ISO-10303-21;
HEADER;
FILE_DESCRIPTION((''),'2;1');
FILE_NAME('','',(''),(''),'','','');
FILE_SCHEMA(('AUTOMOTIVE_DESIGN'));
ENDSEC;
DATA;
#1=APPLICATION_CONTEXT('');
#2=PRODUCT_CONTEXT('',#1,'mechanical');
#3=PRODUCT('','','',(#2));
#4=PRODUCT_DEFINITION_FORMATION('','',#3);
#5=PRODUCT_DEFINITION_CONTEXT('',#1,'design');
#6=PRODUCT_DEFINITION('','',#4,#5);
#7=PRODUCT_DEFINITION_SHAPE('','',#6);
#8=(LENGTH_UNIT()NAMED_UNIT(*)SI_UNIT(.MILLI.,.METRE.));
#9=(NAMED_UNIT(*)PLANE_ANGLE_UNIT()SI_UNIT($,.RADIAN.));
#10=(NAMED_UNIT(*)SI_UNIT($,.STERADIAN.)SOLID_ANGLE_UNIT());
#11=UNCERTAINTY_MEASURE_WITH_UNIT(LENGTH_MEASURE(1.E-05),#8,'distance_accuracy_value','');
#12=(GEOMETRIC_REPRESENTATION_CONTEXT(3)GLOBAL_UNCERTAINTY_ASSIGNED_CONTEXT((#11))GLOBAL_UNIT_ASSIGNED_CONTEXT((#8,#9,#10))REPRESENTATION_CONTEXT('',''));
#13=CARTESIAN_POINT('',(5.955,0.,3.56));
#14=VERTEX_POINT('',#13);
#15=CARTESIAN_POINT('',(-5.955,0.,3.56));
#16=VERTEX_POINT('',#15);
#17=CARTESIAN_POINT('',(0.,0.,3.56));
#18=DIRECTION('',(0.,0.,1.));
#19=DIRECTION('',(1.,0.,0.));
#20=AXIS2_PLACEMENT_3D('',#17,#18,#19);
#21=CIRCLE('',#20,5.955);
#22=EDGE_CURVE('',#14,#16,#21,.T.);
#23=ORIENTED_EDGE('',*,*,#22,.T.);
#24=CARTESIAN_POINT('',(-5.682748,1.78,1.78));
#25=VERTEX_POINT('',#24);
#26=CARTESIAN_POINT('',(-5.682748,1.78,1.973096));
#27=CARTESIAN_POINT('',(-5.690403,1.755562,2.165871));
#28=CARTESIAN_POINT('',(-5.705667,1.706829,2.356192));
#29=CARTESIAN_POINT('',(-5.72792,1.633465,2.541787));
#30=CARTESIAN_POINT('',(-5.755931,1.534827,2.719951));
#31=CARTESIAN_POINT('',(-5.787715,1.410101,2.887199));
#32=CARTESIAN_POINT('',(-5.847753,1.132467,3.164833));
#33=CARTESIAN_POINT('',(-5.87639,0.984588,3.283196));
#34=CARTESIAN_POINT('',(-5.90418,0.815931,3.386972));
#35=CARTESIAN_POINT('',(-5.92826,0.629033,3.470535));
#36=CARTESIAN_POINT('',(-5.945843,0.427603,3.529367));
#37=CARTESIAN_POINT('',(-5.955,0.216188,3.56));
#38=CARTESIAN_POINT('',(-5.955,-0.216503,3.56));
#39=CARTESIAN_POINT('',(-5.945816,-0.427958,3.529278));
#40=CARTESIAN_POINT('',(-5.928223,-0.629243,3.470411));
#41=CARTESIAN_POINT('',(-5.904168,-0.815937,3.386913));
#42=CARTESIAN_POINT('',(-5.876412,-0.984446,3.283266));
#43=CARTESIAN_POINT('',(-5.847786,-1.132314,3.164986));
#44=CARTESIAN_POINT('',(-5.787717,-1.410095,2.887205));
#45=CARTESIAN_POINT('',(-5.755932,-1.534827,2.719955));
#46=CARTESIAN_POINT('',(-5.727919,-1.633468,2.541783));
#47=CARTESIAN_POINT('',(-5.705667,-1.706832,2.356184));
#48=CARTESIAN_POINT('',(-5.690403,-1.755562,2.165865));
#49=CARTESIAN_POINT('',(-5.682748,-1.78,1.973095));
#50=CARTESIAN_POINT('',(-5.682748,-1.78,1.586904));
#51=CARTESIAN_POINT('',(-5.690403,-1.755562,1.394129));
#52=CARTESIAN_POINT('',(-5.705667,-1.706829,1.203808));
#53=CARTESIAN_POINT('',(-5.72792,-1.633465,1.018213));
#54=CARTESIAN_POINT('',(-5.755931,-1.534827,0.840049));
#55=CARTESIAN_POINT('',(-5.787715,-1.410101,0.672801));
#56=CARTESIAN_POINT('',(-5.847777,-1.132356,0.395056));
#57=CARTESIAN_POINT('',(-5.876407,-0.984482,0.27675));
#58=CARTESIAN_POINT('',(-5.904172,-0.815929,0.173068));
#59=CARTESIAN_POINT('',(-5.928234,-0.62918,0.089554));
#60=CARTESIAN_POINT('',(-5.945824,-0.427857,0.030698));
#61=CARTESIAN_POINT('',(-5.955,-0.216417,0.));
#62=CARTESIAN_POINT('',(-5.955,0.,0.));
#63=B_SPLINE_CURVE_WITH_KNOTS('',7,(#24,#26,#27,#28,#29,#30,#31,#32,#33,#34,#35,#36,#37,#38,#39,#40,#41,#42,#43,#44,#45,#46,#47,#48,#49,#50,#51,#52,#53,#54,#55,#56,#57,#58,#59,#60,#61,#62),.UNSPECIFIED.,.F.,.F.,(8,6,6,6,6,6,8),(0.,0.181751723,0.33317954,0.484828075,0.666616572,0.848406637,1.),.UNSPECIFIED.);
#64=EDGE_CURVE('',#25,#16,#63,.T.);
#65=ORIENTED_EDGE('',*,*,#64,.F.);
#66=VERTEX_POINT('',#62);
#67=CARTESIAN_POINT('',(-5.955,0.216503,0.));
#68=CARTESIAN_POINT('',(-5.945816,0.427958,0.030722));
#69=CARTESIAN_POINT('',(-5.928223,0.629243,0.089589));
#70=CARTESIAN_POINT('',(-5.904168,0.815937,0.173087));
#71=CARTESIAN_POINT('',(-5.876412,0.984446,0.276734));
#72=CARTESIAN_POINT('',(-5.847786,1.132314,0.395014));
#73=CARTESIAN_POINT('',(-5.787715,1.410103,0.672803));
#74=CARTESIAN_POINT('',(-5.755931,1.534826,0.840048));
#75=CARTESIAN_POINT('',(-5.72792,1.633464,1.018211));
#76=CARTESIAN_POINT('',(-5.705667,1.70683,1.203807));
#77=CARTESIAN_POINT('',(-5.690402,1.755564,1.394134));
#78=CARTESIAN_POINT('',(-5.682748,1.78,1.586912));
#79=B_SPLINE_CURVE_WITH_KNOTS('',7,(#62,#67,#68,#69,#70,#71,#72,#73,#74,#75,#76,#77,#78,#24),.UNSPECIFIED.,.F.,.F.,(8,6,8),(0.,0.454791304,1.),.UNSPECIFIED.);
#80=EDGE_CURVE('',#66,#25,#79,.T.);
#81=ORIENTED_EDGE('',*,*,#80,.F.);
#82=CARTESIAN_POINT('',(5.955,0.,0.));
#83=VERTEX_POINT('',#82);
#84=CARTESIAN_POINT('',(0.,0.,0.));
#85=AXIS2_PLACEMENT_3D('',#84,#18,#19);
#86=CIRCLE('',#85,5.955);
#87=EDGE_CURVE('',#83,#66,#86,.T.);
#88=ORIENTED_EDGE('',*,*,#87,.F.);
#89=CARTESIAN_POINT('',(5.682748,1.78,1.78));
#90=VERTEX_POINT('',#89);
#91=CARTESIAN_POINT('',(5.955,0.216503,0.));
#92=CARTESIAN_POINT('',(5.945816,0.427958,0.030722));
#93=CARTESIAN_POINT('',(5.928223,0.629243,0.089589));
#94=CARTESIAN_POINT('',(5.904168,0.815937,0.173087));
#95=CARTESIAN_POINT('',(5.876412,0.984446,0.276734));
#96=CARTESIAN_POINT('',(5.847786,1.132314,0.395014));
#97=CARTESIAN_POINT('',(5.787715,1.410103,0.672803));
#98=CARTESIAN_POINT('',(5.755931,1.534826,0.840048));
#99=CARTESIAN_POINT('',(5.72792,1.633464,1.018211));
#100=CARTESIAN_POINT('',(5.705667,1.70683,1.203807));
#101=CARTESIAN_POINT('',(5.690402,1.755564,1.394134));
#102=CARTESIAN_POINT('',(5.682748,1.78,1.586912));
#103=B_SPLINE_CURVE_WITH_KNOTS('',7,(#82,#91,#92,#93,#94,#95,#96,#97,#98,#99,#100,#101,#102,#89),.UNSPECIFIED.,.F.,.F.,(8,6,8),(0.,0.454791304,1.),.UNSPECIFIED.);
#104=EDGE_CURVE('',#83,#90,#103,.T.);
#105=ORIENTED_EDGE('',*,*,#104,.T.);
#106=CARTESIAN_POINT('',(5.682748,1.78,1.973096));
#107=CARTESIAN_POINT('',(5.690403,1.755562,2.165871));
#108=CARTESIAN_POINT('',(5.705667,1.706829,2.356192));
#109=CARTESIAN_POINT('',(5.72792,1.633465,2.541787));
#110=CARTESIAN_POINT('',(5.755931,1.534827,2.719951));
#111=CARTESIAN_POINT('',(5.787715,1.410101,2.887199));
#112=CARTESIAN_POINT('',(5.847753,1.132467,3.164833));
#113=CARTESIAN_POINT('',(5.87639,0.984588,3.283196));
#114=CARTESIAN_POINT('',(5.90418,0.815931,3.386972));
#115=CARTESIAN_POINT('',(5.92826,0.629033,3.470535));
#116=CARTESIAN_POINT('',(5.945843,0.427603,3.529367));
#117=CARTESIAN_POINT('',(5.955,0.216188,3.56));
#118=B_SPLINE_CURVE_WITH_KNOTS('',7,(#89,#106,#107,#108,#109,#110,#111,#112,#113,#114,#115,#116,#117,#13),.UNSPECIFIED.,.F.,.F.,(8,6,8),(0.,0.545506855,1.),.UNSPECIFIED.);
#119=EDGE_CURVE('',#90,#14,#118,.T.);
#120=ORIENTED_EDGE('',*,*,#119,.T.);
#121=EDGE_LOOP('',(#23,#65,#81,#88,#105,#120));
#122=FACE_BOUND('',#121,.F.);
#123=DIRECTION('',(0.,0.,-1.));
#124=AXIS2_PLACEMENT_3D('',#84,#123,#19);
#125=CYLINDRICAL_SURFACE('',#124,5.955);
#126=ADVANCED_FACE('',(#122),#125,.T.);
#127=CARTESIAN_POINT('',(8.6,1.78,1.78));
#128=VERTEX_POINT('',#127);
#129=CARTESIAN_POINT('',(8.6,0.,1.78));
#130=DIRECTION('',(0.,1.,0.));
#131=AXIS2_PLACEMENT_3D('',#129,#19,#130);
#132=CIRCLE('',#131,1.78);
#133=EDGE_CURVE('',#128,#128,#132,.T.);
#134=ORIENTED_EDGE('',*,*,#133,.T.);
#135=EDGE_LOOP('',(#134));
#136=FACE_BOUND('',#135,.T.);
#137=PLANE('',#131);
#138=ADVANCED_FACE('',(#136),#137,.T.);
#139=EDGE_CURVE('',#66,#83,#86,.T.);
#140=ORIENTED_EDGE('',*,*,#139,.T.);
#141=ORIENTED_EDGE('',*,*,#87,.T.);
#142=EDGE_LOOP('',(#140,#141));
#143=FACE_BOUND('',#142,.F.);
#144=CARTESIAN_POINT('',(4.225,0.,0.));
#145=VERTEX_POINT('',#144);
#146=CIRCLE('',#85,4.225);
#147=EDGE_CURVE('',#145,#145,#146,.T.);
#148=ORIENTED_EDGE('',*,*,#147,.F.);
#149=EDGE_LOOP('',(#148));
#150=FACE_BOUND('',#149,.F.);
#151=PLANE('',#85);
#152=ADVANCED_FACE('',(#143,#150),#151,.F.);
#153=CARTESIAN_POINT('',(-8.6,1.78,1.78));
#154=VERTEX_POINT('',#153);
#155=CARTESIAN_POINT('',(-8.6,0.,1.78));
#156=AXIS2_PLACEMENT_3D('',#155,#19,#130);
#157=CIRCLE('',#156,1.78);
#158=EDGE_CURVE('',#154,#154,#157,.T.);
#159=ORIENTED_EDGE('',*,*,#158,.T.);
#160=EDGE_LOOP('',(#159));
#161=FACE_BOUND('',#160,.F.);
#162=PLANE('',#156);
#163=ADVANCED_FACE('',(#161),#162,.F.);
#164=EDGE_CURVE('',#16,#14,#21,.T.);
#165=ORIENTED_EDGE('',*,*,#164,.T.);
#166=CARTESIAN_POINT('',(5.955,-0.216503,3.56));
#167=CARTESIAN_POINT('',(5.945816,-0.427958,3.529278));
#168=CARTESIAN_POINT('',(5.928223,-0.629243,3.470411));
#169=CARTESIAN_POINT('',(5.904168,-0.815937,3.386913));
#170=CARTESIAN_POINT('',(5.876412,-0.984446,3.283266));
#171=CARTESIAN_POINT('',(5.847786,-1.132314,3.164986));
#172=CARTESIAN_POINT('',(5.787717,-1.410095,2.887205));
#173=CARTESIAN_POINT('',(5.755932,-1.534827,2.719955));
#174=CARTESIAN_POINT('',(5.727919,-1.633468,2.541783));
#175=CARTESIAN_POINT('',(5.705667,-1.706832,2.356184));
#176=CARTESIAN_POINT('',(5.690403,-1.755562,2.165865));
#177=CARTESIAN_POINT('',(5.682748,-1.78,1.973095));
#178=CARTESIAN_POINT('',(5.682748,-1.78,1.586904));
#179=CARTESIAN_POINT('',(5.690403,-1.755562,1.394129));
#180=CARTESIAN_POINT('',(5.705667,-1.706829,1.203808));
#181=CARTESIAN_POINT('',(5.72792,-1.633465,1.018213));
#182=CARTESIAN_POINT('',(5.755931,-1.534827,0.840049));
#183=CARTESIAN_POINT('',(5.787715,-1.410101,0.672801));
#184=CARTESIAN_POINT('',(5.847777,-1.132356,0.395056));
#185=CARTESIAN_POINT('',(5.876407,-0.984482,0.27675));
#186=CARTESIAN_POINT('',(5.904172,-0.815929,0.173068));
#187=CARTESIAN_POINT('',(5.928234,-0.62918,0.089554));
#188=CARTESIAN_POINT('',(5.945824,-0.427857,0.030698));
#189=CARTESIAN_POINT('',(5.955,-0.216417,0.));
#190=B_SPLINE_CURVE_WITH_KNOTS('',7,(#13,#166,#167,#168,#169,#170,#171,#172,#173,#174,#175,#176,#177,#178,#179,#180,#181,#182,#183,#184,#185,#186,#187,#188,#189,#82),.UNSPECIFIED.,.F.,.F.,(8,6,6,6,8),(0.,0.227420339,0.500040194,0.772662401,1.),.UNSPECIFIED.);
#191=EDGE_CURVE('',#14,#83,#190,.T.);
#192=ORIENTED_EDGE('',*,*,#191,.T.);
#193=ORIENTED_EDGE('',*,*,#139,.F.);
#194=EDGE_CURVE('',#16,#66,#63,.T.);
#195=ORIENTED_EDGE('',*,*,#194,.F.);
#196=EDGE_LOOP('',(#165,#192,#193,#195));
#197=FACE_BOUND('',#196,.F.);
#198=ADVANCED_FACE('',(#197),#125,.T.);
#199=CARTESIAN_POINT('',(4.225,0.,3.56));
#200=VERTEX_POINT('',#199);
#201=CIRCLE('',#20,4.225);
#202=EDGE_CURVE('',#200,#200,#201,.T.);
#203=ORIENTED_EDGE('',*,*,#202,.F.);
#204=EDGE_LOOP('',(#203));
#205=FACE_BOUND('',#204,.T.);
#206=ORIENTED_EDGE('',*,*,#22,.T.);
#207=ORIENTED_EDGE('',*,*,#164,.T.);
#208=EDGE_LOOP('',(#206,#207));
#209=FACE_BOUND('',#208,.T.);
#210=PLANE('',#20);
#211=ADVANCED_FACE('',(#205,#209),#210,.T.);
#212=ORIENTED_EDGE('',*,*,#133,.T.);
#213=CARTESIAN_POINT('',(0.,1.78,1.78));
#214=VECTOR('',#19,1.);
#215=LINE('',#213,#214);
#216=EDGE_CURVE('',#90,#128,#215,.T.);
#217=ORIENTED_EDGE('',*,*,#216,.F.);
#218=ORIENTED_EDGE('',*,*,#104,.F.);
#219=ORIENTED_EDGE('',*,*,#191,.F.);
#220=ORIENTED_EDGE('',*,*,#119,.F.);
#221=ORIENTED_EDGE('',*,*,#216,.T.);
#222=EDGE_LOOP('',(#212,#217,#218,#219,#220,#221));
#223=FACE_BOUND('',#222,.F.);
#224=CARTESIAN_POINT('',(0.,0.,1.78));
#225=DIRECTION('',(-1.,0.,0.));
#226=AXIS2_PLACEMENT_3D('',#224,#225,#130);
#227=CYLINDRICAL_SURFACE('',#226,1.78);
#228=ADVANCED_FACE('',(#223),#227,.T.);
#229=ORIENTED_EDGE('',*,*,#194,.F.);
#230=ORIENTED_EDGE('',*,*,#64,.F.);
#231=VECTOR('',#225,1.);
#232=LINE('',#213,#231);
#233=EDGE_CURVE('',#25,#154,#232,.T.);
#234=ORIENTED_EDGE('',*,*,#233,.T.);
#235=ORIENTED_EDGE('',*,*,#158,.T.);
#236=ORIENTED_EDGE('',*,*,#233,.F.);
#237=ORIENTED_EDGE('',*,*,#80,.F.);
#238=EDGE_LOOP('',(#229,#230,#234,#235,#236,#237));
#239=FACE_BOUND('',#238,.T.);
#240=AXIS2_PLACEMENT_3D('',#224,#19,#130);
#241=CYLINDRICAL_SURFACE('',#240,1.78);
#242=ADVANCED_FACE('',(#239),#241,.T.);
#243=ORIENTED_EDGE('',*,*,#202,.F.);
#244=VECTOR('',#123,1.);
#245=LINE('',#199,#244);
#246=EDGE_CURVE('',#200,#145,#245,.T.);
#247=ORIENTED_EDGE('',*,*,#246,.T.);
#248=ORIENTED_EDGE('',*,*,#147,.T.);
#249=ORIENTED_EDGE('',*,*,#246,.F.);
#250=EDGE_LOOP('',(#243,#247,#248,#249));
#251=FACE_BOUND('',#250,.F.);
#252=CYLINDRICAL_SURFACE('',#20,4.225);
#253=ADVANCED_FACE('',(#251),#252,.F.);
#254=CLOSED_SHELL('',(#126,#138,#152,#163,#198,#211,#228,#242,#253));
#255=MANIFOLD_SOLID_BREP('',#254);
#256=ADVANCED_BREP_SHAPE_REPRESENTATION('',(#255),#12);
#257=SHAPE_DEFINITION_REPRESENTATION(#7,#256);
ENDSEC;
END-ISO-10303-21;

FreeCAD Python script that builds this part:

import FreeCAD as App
import Part
import Sketcher

V = App.Vector

doc = App.newDocument("Part")
body = doc.addObject("PartDesign::Body", "Body")

# Sketch on YZ plane
sketch1 = body.newObject("Sketcher::SketchObject", "Sketch")
sketch1.AttachmentSupport = (doc.getObject("YZ_Plane"), [""])
sketch1.MapMode = "FlatFace"
sketch1.addGeometry(Part.Circle(V(0, 1.78, 0), V(0, 0, 1), 1.78), False)
sketch1.addConstraint(Sketcher.Constraint("PointOnObject", 0, 3, -2))
sketch1.addConstraint(Sketcher.Constraint("Diameter", 0, 3.56))
sketch1.addConstraint(Sketcher.Constraint("DistanceY", -1, 1, 0, 3, 1.78))
pad1 = body.newObject("PartDesign::Pad", "Pad")
pad1.Profile = sketch1
pad1.Type = "TwoLengths"
pad1.Length = 8.6
pad1.Length2 = 8.6
pad1.Reversed = True

# Sketch on XY plane
sketch2 = body.newObject("Sketcher::SketchObject", "Sketch001")
sketch2.AttachmentSupport = (doc.getObject("XY_Plane"), [""])
sketch2.MapMode = "FlatFace"
sketch2.addGeometry(Part.Circle(V(0, 0, 0), V(0, 0, 1), 5.955), False)
sketch2.addConstraint(Sketcher.Constraint("Coincident", 0, 3, -1, 1))
sketch2.addConstraint(Sketcher.Constraint("Diameter", 0, 11.91))
pad2 = body.newObject("PartDesign::Pad", "Pad001")
pad2.Profile = sketch2
pad2.Length = 3.56

# Sketch on XY plane
sketch3 = body.newObject("Sketcher::SketchObject", "Sketch002")
sketch3.AttachmentSupport = (doc.getObject("XY_Plane"), [""])
sketch3.MapMode = "FlatFace"
sketch3.AttachmentOffset = App.Placement(V(0, 0, 3.56), App.Rotation())
sketch3.addGeometry(Part.Circle(V(0, 0, 0), V(0, 0, 1), 4.225), False)
sketch3.addConstraint(Sketcher.Constraint("Coincident", 0, 3, -1, 1))
sketch3.addConstraint(Sketcher.Constraint("Diameter", 0, 8.45))
pocket1 = body.newObject("PartDesign::Pocket", "Pocket")
pocket1.Profile = sketch3
pocket1.Length = 3.56

doc.recompute()
